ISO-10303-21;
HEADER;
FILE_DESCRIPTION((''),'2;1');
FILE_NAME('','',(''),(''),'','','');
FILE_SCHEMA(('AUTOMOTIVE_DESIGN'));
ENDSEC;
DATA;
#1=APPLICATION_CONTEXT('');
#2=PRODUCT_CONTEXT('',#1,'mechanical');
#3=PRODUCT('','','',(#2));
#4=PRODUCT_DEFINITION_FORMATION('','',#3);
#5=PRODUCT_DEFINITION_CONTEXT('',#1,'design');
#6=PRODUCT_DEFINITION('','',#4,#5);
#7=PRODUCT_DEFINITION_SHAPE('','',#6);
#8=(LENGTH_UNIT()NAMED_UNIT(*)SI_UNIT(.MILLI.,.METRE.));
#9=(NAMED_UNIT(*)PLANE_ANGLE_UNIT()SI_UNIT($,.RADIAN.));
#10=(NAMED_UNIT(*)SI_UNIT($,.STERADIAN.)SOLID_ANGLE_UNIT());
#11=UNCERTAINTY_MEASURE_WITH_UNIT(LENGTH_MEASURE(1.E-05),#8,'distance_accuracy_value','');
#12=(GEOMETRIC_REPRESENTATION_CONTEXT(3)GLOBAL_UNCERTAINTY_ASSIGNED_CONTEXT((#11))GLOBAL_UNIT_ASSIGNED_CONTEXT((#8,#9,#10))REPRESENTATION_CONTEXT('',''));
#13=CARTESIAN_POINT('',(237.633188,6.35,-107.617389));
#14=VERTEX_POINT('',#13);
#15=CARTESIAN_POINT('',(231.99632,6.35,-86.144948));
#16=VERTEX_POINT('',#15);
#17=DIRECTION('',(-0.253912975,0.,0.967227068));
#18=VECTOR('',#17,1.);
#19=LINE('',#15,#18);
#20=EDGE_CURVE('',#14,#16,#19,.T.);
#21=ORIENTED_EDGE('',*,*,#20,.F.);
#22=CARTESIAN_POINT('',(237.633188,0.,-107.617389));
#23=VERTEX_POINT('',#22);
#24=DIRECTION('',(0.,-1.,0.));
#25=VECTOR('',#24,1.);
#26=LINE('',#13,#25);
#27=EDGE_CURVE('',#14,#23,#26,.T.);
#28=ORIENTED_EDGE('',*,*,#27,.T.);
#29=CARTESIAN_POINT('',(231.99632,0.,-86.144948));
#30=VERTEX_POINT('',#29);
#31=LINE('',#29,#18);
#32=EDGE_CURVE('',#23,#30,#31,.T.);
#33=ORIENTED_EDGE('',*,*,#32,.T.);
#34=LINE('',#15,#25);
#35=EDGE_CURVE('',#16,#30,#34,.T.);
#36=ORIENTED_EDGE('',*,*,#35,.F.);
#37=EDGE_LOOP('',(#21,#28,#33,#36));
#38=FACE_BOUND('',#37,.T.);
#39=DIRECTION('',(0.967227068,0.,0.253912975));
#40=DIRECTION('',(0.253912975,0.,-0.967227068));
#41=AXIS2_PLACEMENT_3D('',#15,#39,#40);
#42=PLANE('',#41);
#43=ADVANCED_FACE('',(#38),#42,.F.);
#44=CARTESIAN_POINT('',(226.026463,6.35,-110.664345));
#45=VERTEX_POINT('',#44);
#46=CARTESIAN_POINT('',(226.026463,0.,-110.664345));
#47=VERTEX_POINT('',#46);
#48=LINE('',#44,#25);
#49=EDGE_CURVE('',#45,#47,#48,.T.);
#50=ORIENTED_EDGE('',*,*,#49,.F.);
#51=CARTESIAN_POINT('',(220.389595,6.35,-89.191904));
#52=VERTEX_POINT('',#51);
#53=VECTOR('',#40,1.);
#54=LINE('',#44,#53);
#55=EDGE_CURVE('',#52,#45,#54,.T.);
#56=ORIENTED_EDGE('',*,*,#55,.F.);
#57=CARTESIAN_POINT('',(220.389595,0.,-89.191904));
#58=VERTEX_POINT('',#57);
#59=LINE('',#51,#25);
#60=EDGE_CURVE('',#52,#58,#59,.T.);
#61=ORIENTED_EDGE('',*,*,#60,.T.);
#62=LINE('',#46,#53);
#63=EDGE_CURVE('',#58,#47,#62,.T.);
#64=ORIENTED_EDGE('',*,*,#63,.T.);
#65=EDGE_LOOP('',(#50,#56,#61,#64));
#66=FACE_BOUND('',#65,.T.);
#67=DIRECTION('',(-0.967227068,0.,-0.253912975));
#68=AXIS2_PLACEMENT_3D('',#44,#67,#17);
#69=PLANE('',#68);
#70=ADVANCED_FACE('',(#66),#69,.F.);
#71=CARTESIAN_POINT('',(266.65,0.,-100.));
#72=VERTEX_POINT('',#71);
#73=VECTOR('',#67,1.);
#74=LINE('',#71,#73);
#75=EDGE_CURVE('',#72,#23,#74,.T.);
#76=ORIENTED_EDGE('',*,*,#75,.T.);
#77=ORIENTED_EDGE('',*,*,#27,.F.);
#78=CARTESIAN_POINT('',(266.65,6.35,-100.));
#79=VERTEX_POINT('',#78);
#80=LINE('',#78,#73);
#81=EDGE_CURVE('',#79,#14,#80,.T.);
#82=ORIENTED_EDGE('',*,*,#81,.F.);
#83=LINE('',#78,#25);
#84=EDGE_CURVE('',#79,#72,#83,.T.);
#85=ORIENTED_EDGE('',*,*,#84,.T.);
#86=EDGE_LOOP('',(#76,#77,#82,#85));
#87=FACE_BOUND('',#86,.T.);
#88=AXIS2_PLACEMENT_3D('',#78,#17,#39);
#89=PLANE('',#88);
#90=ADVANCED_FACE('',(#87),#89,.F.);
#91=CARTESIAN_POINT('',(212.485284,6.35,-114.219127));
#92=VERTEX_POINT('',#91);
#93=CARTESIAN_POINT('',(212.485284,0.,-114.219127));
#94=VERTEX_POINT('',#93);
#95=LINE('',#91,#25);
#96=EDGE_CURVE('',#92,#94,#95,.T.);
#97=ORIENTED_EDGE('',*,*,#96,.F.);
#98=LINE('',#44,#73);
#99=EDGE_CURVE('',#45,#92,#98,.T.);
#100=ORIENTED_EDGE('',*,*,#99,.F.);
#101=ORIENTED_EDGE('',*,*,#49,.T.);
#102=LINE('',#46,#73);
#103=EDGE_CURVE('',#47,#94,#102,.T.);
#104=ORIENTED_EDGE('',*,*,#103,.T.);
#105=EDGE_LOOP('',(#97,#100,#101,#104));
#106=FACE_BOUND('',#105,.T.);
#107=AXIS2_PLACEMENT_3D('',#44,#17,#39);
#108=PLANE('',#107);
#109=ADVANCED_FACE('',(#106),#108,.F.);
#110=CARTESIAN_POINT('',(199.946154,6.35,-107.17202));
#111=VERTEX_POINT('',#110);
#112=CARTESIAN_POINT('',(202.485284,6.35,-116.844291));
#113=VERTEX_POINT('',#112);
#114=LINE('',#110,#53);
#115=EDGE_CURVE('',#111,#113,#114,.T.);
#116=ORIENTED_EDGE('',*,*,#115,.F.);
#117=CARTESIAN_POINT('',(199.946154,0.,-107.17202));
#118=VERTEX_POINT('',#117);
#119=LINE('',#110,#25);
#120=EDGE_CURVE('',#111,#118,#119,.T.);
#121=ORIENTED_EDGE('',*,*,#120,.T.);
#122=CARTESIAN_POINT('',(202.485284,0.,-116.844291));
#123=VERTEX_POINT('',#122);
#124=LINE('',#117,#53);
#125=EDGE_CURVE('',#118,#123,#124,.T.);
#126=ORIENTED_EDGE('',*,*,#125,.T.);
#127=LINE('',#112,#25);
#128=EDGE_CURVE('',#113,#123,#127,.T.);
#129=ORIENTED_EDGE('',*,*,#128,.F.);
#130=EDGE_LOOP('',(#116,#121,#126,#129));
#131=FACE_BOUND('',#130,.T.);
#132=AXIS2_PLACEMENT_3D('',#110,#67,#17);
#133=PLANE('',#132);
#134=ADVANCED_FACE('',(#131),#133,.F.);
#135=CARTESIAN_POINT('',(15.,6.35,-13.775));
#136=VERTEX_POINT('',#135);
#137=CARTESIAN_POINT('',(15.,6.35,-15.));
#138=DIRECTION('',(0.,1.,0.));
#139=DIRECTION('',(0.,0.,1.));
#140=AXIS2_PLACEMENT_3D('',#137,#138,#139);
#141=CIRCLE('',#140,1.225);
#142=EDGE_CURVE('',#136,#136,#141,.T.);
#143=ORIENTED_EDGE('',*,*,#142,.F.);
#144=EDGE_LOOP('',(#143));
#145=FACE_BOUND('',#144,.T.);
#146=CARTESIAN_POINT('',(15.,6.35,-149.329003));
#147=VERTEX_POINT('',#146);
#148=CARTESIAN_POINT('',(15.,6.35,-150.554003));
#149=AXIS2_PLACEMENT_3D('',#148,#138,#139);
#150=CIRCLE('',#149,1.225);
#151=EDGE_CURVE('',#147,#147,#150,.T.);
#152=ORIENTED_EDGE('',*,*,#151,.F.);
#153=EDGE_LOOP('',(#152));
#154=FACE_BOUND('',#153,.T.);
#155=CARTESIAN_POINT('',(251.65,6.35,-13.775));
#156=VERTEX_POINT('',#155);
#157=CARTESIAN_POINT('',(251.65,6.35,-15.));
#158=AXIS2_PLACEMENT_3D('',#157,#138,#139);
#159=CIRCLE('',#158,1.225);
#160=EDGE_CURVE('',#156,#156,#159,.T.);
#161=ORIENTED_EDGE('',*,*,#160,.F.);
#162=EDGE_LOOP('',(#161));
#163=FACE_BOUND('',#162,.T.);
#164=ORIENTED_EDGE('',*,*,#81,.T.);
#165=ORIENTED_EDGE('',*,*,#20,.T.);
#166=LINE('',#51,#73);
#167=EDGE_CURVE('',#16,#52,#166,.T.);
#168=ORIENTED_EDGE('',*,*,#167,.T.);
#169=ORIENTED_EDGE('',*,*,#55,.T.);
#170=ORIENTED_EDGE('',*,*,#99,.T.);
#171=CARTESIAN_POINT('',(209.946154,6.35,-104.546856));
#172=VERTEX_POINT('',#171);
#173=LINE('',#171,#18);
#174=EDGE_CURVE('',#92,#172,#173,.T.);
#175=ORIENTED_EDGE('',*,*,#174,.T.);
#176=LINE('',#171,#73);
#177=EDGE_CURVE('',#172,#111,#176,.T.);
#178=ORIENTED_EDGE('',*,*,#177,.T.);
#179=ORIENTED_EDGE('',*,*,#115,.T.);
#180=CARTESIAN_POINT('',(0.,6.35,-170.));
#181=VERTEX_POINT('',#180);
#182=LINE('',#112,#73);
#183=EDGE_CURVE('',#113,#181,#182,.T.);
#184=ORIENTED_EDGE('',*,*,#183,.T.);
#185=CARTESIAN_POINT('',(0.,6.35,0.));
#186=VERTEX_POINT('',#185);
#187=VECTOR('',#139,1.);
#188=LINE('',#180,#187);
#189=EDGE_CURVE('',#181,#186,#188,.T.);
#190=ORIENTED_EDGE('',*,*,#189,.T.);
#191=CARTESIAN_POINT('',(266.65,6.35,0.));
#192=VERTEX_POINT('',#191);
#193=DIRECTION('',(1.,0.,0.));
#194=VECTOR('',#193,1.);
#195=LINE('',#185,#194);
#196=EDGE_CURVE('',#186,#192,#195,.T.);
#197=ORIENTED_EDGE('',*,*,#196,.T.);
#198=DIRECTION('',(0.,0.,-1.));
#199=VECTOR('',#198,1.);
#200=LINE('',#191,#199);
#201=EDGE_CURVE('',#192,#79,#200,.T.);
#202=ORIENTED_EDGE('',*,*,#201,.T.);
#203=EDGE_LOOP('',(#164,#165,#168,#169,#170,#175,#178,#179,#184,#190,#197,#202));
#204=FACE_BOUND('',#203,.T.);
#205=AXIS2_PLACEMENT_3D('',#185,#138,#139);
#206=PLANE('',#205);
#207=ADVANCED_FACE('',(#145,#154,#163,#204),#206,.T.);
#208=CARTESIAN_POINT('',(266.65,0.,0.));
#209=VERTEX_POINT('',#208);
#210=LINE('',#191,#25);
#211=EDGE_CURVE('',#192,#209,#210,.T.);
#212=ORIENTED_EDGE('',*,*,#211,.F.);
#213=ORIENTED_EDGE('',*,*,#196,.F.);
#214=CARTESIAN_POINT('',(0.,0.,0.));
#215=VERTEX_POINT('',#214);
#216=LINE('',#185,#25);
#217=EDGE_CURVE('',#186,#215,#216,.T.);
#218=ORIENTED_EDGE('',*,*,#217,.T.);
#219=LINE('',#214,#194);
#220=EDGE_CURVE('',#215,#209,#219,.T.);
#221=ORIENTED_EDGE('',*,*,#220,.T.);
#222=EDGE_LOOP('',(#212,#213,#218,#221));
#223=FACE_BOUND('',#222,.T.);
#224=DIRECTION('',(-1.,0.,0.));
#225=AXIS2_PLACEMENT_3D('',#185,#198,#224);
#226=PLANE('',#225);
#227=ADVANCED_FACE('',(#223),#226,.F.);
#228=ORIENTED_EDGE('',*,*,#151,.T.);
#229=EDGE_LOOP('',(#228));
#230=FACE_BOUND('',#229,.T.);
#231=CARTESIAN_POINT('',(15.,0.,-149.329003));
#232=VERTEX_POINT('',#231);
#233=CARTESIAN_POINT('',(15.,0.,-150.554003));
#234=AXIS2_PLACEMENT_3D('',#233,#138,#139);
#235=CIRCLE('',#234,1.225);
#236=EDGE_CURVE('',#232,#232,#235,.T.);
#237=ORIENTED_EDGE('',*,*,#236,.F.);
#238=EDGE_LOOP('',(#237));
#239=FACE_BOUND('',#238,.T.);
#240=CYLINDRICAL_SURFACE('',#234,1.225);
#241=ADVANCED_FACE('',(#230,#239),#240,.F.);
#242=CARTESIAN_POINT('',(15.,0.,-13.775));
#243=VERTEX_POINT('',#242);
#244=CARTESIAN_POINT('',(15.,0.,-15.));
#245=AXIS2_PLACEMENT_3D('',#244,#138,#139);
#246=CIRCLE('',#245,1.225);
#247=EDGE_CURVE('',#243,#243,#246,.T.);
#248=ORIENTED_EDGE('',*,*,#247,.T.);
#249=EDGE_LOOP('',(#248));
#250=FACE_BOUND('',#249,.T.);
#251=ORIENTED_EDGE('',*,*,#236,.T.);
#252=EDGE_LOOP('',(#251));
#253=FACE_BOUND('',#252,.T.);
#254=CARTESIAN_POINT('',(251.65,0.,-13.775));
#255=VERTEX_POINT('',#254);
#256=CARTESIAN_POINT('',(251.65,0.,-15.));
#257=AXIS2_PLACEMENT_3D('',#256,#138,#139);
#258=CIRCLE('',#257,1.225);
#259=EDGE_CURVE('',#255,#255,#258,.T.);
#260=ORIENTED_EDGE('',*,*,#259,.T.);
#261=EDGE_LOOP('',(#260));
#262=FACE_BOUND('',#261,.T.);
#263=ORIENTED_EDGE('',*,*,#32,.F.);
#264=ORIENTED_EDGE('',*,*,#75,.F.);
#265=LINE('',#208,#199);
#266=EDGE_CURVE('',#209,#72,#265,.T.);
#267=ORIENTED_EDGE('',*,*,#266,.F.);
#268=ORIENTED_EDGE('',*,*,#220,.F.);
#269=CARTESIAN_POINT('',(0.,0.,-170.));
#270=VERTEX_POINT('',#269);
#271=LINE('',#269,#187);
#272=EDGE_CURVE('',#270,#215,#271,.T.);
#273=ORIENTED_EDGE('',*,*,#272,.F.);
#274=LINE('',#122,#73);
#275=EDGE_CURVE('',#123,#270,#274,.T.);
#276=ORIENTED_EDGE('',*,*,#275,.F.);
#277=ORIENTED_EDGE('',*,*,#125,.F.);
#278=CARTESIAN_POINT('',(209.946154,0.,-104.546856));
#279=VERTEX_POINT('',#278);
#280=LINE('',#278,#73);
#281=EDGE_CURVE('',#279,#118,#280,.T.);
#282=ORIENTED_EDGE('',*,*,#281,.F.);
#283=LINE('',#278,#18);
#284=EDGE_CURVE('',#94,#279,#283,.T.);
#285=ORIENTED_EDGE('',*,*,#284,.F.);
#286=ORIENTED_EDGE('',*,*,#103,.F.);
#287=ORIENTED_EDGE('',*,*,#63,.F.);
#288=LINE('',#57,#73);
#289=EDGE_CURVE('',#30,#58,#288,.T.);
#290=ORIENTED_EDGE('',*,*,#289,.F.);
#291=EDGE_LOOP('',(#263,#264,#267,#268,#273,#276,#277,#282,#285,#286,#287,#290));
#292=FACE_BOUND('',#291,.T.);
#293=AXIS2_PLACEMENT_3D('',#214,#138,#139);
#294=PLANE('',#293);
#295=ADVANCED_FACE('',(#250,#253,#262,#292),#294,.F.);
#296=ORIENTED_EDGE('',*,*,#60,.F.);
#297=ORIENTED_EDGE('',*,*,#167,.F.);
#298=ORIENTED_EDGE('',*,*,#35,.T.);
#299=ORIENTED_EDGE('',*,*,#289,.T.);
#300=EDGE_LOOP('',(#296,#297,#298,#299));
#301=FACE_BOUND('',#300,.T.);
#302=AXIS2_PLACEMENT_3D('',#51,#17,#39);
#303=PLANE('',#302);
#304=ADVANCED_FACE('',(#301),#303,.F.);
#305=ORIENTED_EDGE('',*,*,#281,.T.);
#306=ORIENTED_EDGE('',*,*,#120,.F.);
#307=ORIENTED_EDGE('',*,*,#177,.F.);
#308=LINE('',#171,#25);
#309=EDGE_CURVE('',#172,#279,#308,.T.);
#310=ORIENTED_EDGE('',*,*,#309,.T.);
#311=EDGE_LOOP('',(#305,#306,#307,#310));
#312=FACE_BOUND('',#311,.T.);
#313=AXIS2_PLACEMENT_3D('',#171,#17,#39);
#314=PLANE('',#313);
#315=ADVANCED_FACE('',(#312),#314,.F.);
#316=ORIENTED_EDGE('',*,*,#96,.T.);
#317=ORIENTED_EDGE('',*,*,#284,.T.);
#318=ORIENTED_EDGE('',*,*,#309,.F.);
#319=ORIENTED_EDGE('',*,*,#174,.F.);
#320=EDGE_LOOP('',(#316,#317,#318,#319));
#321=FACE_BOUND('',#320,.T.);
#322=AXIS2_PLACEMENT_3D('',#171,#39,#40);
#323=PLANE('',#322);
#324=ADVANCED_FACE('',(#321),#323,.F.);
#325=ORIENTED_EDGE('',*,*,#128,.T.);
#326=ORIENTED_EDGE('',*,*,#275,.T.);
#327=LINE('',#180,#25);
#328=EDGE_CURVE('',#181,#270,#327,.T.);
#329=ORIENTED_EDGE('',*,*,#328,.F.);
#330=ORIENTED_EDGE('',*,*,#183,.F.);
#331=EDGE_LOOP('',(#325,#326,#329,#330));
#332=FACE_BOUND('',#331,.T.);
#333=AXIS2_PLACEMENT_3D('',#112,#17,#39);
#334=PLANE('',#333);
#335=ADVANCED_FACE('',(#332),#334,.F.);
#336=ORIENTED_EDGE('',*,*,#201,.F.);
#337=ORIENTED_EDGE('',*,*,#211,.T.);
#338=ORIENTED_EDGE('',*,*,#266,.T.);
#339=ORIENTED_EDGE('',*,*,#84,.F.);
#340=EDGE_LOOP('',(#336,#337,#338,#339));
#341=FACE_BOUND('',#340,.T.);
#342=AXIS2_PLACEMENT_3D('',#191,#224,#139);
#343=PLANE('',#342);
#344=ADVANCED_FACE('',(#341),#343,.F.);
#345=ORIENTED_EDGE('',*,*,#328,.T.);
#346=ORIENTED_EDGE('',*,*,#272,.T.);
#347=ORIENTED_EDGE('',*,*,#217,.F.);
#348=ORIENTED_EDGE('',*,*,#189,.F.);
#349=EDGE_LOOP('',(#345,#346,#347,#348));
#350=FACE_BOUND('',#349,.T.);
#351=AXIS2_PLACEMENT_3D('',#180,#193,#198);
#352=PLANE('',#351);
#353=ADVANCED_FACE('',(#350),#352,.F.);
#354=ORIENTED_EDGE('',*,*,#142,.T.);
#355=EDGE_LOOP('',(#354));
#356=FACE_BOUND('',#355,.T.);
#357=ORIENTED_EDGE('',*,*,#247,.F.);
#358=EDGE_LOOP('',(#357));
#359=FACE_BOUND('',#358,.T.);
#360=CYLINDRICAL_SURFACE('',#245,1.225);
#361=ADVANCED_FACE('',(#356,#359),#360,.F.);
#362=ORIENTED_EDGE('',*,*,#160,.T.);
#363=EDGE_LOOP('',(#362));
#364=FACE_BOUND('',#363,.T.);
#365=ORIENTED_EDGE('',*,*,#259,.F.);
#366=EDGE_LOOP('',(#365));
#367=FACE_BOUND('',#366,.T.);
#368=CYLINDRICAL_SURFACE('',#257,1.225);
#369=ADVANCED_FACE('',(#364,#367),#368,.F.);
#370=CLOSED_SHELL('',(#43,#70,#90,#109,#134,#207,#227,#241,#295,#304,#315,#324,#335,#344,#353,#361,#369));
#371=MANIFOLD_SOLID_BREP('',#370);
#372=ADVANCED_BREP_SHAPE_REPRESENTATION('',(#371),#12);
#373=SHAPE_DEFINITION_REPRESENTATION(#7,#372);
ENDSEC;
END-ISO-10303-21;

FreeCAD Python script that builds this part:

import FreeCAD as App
import Part
import Sketcher
from FreeCAD import Vector


def add_polygon(sketch, points):
    """Adds a closed chain of lines whose ends are joined by coincident constraints."""
    first, n = sketch.GeometryCount, len(points)
    for a, b in zip(points, points[1:] + points[:1]):
        sketch.addGeometry(Part.LineSegment(App.Vector(*a, 0), App.Vector(*b, 0)), False)
    for i in range(n):
        sketch.addConstraint(Sketcher.Constraint("Coincident", first + i, 2, first + (i + 1) % n, 1))

doc = App.newDocument("Part")
body = doc.addObject("PartDesign::Body", "Body")

sketch1 = body.newObject("Sketcher::SketchObject", "Sketch")
sketch1.AttachmentSupport = (doc.getObject("XZ_Plane"), [""])
sketch1.MapMode = "FlatFace"
add_polygon(sketch1, [(0, 0), (267, 0), (267, -100), (238, -108), (232, -86), (220, -89), (226, -111), (212, -114), (210, -105), (200, -107), (202, -117), (0, -170)])
sketch1.addConstraint([
    Sketcher.Constraint("Horizontal", 0),
    Sketcher.Constraint("Vertical", 1),
    Sketcher.Constraint("Vertical", 11),
    Sketcher.Constraint("Coincident", 11, 2, -1, 1),
    Sketcher.Constraint("Perpendicular", 2, 3),
    Sketcher.Constraint("Perpendicular", 3, 4),
    Sketcher.Constraint("Perpendicular", 4, 5),
    Sketcher.Constraint("Perpendicular", 5, 6),
    Sketcher.Constraint("Perpendicular", 6, 7),
    Sketcher.Constraint("Perpendicular", 7, 8),
    Sketcher.Constraint("Perpendicular", 8, 9),
    Sketcher.Constraint("Perpendicular", 9, 10),
    Sketcher.Constraint("Equal", 3, 5),
    Sketcher.Constraint("Equal", 7, 9),
    Sketcher.Constraint("DistanceY", 1, 2, 1, 1, 100.0),
    Sketcher.Constraint("DistanceY", 11, 1, 11, 2, 170.0),
    Sketcher.Constraint("Distance", 2, 30.0),
    Sketcher.Constraint("Distance", 4, 12.0),
    Sketcher.Constraint("Distance", 6, 14.0),
    Sketcher.Constraint("Distance", 7, 10.0),
    Sketcher.Constraint("DistanceX", 8, 2, 7, 2, 10.0),
    Sketcher.Constraint("Distance", 3, 22.2),
    Sketcher.Constraint("DistanceX", 0, 1, 0, 2, 266.65),
])
pad1 = body.newObject("PartDesign::Pad", "Pad")
pad1.Profile = sketch1
pad1.Length = 6.35
pad1.Reversed = True

sketch2 = body.newObject("Sketcher::SketchObject", "Sketch001")
sketch2.AttachmentSupport = (doc.getObject("XZ_Plane"), [""])
sketch2.MapMode = "FlatFace"
sketch2.AttachmentOffset = App.Placement(Vector(0, 0, -6.35), App.Rotation())
sketch2.addGeometry([
    Part.Circle(Vector(15, -150.6, 0), Vector(0, 0, 1), 1.2),
    Part.Circle(Vector(15, -15, 0), Vector(0, 0, 1), 1.2),
    Part.Circle(Vector(251.7, -15, 0), Vector(0, 0, 1), 1.2),
], False)
sketch2.addConstraint([
    Sketcher.Constraint("Equal", 0, 1),
    Sketcher.Constraint("Equal", 1, 2),
    Sketcher.Constraint("Horizontal", 1, 3, 2, 3),
    Sketcher.Constraint("Vertical", 0, 3, 1, 3),
    Sketcher.Constraint("Diameter", 0, 2.45),
    Sketcher.Constraint("DistanceX", -1, 1, 0, 3, 15.0),
    Sketcher.Constraint("DistanceY", 1, 3, -1, 1, 15.0),
    Sketcher.Constraint("DistanceX", -1, 1, 2, 3, 251.65),
    Sketcher.Constraint("DistanceY", 0, 3, -1, 1, 150.554003),
])
pocket1 = body.newObject("PartDesign::Pocket", "Pocket")
pocket1.Profile = sketch2
pocket1.Type = "ThroughAll"
pocket1.Reversed = True

doc.recompute()
